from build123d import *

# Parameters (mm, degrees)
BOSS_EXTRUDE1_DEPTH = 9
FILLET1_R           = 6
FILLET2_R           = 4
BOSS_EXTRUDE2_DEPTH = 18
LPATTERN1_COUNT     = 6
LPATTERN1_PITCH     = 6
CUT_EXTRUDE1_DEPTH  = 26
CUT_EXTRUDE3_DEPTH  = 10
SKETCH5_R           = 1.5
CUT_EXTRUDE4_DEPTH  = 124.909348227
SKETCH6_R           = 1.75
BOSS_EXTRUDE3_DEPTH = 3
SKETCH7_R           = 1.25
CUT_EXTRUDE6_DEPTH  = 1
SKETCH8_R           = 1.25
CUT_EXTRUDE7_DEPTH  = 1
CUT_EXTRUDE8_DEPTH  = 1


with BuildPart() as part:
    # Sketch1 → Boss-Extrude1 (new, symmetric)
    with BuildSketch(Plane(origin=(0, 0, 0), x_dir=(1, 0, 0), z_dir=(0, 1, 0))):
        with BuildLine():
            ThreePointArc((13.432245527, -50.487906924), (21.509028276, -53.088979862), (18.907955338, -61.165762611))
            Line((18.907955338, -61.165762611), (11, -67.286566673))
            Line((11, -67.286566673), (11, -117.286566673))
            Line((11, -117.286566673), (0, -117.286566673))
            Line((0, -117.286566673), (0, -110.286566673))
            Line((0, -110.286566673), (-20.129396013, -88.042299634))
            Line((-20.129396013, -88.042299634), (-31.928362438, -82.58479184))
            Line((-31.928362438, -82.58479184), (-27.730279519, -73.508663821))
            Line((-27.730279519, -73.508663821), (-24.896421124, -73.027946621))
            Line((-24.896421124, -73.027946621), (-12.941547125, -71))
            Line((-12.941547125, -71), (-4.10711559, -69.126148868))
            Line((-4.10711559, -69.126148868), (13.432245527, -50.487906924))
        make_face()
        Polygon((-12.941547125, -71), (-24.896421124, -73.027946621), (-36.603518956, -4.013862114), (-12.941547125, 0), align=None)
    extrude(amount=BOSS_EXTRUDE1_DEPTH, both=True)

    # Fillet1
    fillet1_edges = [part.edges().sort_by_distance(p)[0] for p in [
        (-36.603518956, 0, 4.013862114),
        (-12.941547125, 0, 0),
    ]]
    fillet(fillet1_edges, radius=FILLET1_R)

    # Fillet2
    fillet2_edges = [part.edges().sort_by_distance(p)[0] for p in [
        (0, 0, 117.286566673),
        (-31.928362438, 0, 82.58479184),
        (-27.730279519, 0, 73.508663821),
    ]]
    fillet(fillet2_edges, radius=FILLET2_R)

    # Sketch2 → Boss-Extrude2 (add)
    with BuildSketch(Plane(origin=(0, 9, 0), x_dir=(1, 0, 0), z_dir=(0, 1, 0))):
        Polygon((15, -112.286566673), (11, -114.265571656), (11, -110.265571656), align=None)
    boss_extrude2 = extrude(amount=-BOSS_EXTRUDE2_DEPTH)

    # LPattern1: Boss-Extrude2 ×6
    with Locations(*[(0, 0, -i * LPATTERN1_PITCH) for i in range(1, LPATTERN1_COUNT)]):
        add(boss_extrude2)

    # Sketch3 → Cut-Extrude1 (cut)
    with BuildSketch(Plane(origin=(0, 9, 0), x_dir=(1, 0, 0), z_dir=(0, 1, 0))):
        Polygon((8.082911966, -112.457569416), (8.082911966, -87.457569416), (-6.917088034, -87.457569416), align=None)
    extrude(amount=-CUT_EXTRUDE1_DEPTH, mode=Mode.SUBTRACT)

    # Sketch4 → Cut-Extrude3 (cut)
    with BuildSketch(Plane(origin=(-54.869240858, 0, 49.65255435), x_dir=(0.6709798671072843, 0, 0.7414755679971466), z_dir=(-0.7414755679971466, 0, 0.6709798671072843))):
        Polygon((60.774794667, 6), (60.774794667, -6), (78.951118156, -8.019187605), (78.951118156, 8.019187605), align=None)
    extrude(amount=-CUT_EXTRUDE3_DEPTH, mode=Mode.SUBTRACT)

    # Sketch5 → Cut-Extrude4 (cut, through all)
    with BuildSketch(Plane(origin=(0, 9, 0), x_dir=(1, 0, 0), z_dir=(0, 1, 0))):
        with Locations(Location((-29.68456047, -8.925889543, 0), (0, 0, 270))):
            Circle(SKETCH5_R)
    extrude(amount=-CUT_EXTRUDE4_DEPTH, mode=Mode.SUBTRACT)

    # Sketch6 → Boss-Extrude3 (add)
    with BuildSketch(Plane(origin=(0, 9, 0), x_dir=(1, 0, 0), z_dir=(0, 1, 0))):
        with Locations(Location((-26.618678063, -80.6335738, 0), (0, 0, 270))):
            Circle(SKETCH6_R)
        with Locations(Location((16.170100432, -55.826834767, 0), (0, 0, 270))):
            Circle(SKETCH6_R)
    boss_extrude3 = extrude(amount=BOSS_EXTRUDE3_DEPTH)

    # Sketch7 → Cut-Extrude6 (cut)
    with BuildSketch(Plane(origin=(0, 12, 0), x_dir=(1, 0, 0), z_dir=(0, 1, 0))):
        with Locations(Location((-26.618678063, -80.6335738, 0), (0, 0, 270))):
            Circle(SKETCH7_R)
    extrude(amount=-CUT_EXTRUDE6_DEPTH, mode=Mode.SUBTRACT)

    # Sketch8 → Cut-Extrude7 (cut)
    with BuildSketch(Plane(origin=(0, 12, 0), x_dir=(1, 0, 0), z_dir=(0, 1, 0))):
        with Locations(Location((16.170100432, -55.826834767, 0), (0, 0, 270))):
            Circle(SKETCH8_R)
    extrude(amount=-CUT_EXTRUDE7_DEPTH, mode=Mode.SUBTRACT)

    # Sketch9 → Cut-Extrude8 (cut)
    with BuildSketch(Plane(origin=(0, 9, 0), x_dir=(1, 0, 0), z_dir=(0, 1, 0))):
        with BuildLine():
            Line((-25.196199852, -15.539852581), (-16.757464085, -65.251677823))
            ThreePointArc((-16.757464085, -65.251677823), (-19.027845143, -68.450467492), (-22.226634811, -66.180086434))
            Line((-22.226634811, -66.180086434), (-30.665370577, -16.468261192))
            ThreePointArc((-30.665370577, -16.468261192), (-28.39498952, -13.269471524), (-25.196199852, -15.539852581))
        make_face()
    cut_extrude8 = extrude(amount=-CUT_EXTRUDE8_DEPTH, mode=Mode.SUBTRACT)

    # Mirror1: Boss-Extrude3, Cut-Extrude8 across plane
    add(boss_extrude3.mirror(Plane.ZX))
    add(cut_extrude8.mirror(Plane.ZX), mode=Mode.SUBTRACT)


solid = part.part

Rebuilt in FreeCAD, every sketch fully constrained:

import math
import FreeCAD as App
import Part
import Sketcher
Q = App.Units.Quantity


def edges_at(feature, points):
    """Names of the edges that pass closest to the given points."""
    edges = feature.Shape.Edges
    near = lambda p: min(range(len(edges)), key=lambda i: edges[i].distToShape(Part.Vertex(*p))[0])
    return sorted({f"Edge{near(p) + 1}" for p in points})

doc = App.newDocument("Part")
body = doc.addObject("PartDesign::Body", "Body")

# Sketch on XZ plane
sketch1 = body.newObject("Sketcher::SketchObject", "Sketch")
sketch1.AttachmentSupport = (doc.getObject("XZ_Plane"), [""])
sketch1.MapMode = "FlatFace"
sketch1.addGeometry([
    Part.ArcOfCircle(Part.Circle(App.Vector(16.1701, 55.826835, 0), App.Vector(0, 0, 1), 6), math.radians(-117.149199), math.radians(62.850801)),  # 0
    Part.LineSegment(App.Vector(13.432246, 50.487907, 0), App.Vector(-4.107116, 69.126149, 0)),  # 1
    Part.LineSegment(App.Vector(-4.107116, 69.126149, 0), App.Vector(-12.941547, 71, 0)),  # 2
    Part.LineSegment(App.Vector(-12.941547, 71, 0), App.Vector(-12.941547, 0, 0)),  # 3
    Part.LineSegment(App.Vector(-12.941547, 0, 0), App.Vector(-36.603519, 4.013862, 0)),  # 4
    Part.LineSegment(App.Vector(-36.603519, 4.013862, 0), App.Vector(-24.896421, 73.027947, 0)),  # 5
    Part.LineSegment(App.Vector(-24.896421, 73.027947, 0), App.Vector(-27.73028, 73.508664, 0)),  # 6
    Part.LineSegment(App.Vector(-27.73028, 73.508664, 0), App.Vector(-31.928362, 82.584792, 0)),  # 7
    Part.LineSegment(App.Vector(-31.928362, 82.584792, 0), App.Vector(-20.129396, 88.0423, 0)),  # 8
    Part.LineSegment(App.Vector(-20.129396, 88.0423, 0), App.Vector(0, 110.286567, 0)),  # 9
    Part.LineSegment(App.Vector(0, 110.286567, 0), App.Vector(0, 117.286567, 0)),  # 10
    Part.LineSegment(App.Vector(0, 117.286567, 0), App.Vector(11, 117.286567, 0)),  # 11
    Part.LineSegment(App.Vector(11, 117.286567, 0), App.Vector(11, 67.286567, 0)),  # 12
    Part.LineSegment(App.Vector(11, 67.286567, 0), App.Vector(18.907955, 61.165763, 0)),  # 13
], False)
sketch1.addConstraint([
    Sketcher.Constraint("Coincident", 0, 1, 1, 1),
    Sketcher.Constraint("Coincident", 1, 2, 2, 1),
    Sketcher.Constraint("Coincident", 2, 2, 3, 1),
    Sketcher.Constraint("Coincident", 3, 2, 4, 1),
    Sketcher.Constraint("Coincident", 4, 2, 5, 1),
    Sketcher.Constraint("Coincident", 5, 2, 6, 1),
    Sketcher.Constraint("Coincident", 6, 2, 7, 1),
    Sketcher.Constraint("Coincident", 7, 2, 8, 1),
    Sketcher.Constraint("Coincident", 8, 2, 9, 1),
    Sketcher.Constraint("Coincident", 9, 2, 10, 1),
    Sketcher.Constraint("Coincident", 10, 2, 11, 1),
    Sketcher.Constraint("Coincident", 11, 2, 12, 1),
    Sketcher.Constraint("Coincident", 12, 2, 13, 1),
    Sketcher.Constraint("Coincident", 13, 2, 0, 2),
    Sketcher.Constraint("Vertical", 3),
    Sketcher.Constraint("Vertical", 10),
    Sketcher.Constraint("Horizontal", 11),
    Sketcher.Constraint("Vertical", 12),
    Sketcher.Constraint("PointOnObject", 3, 2, -1),
    Sketcher.Constraint("PointOnObject", 9, 2, -2),
    Sketcher.Constraint("Perpendicular", 4, 5),
    Sketcher.Constraint("Perpendicular", 5, 6),
    Sketcher.Constraint("Perpendicular", 7, 8),
    Sketcher.Constraint("Equal", 7, 13),
    Sketcher.Constraint("Radius", 0, Q("6 mm")),
    Sketcher.Constraint("DistanceX", 11, 1, 11, 2, Q("11 mm")),
    Sketcher.Constraint("DistanceY", 3, 2, 3, 1, Q("71 mm")),
    Sketcher.Constraint("DistanceY", 10, 1, 10, 2, Q("7 mm")),
    Sketcher.Constraint("DistanceY", 12, 2, 12, 1, Q("50 mm")),
    Sketcher.Constraint("Distance", 4, Q("24 mm")),
    Sketcher.Constraint("Distance", 5, Q("70 mm")),
    Sketcher.Constraint("Distance", 7, Q("10 mm")),
    Sketcher.Constraint("Distance", 8, Q("13 mm")),
    Sketcher.Constraint("Distance", 9, Q("30 mm")),
    Sketcher.Constraint("DistanceX", -1, 1, 0, 3, Q("16.1701 mm")),
    Sketcher.Constraint("DistanceY", -1, 1, 8, 2, Q("88.0423 mm")),
    Sketcher.Constraint("DistanceY", -1, 1, 1, 2, Q("69.126149 mm")),
    Sketcher.Constraint("DistanceX", 4, 2, -1, 1, Q("36.603519 mm")),
    Sketcher.Constraint("DistanceX", 5, 2, -1, 1, Q("24.896421 mm")),
    Sketcher.Constraint("DistanceX", 6, 2, -1, 1, Q("27.73028 mm")),
    Sketcher.Constraint("DistanceX", 1, 2, 0, 1, Q("17.539361 mm")),
    Sketcher.Constraint("DistanceY", 0, 1, 1, 2, Q("18.638242 mm")),
    Sketcher.Constraint("DistanceX", 2, 2, 1, 2, Q("8.834432 mm")),
])
pad1 = body.newObject("PartDesign::Pad", "Pad")
pad1.Profile = sketch1
pad1.Length = 18
pad1.Midplane = True
doc.recompute()

fillet = body.newObject("PartDesign::Fillet", "Fillet")
fillet.Base = (pad1, edges_at(pad1, [(-36.604, 0, 4.014), (-12.942, 0, 0)]))
fillet.Radius = 6
doc.recompute()

fillet2 = body.newObject("PartDesign::Fillet", "Fillet001")
fillet2.Base = (fillet, edges_at(fillet, [(0, 0, 117.287), (-31.928, 0, 82.585), (-27.73, 0, 73.509)]))
fillet2.Radius = 4

# Sketch on XZ plane
sketch2 = body.newObject("Sketcher::SketchObject", "Sketch001")
sketch2.AttachmentSupport = (doc.getObject("XZ_Plane"), [""])
sketch2.MapMode = "FlatFace"
sketch2.AttachmentOffset = App.Placement(App.Vector(0, 0, -9), App.Rotation())
sketch2.addGeometry([
    Part.LineSegment(App.Vector(11, 114.265572, 0), App.Vector(15, 112.286567, 0)),
    Part.LineSegment(App.Vector(15, 112.286567, 0), App.Vector(11, 110.265572, 0)),
    Part.LineSegment(App.Vector(11, 110.265572, 0), App.Vector(11, 114.265572, 0)),
], False)
sketch2.addConstraint([
    Sketcher.Constraint("Coincident", 0, 2, 1, 1),
    Sketcher.Constraint("Coincident", 1, 2, 2, 1),
    Sketcher.Constraint("Coincident", 2, 2, 0, 1),
    Sketcher.Constraint("Vertical", 2),
    Sketcher.Constraint("DistanceY", 2, 1, 2, 2, Q("4 mm")),
    Sketcher.Constraint("DistanceX", -1, 1, 0, 2, Q("15 mm")),
    Sketcher.Constraint("DistanceX", -1, 1, 1, 2, Q("11 mm")),
    Sketcher.Constraint("DistanceY", -1, 1, 1, 2, Q("110.265572 mm")),
    Sketcher.Constraint("Distance", 0, Q("4.462786 mm")),
])
pad2 = body.newObject("PartDesign::Pad", "Pad001")
pad2.Profile = sketch2
pad2.Length = 18
doc.recompute()

linearpattern = body.newObject("PartDesign::LinearPattern", "LinearPattern")
linearpattern.Originals = [pad2]
linearpattern.Direction = (doc.getObject("Z_Axis"), [""])
linearpattern.Mode = "offset"
linearpattern.Offset = 6
linearpattern.Occurrences = 6
linearpattern.Reversed = True
body.Tip = linearpattern

# Sketch on XZ plane
sketch3 = body.newObject("Sketcher::SketchObject", "Sketch002")
sketch3.AttachmentSupport = (doc.getObject("XZ_Plane"), [""])
sketch3.MapMode = "FlatFace"
sketch3.AttachmentOffset = App.Placement(App.Vector(0, 0, -9), App.Rotation())
sketch3.addGeometry([
    Part.LineSegment(App.Vector(8.082912, 112.457569, 0), App.Vector(8.082912, 87.457569, 0)),
    Part.LineSegment(App.Vector(8.082912, 87.457569, 0), App.Vector(-6.917088, 87.457569, 0)),
    Part.LineSegment(App.Vector(-6.917088, 87.457569, 0), App.Vector(8.082912, 112.457569, 0)),
], False)
sketch3.addConstraint([
    Sketcher.Constraint("Coincident", 0, 2, 1, 1),
    Sketcher.Constraint("Coincident", 1, 2, 2, 1),
    Sketcher.Constraint("Coincident", 2, 2, 0, 1),
    Sketcher.Constraint("Vertical", 0),
    Sketcher.Constraint("Horizontal", 1),
    Sketcher.Constraint("DistanceX", 1, 2, 1, 1, Q("15 mm")),
    Sketcher.Constraint("DistanceY", 0, 2, 0, 1, Q("25 mm")),
    Sketcher.Constraint("DistanceX", -1, 1, 0, 2, Q("8.082912 mm")),
    Sketcher.Constraint("DistanceY", -1, 1, 0, 2, Q("87.457569 mm")),
])
pocket1 = body.newObject("PartDesign::Pocket", "Pocket")
pocket1.Profile = sketch3
pocket1.Length = 26
pocket1.Reversed = True

# Sketch on an angled plane
sketch4 = body.newObject("Sketcher::SketchObject", "Sketch003")
sketch4.Placement = App.Placement(App.Vector(-54.869241, 0, 49.652554), App.Rotation(App.Vector(0.670979867, 0, 0.741475568), App.Vector(0, 1, 0), App.Vector(-0.741475568, 0, 0.670979867), "ZXY"))
sketch4.addGeometry([
    Part.LineSegment(App.Vector(60.774795, 6, 0), App.Vector(60.774795, -6, 0)),
    Part.LineSegment(App.Vector(60.774795, -6, 0), App.Vector(78.951118, -8.019188, 0)),
    Part.LineSegment(App.Vector(78.951118, -8.019188, 0), App.Vector(78.951118, 8.019188, 0)),
    Part.LineSegment(App.Vector(78.951118, 8.019188, 0), App.Vector(60.774795, 6, 0)),
], False)
sketch4.addConstraint([
    Sketcher.Constraint("Coincident", 0, 2, 1, 1),
    Sketcher.Constraint("Coincident", 1, 2, 2, 1),
    Sketcher.Constraint("Coincident", 2, 2, 3, 1),
    Sketcher.Constraint("Coincident", 3, 2, 0, 1),
    Sketcher.Constraint("Vertical", 0),
    Sketcher.Constraint("Vertical", 2),
    Sketcher.Constraint("Equal", 1, 3),
    Sketcher.Constraint("DistanceY", 0, 2, 0, 1, Q("12 mm")),
    Sketcher.Constraint("DistanceY", 0, 2, -1, 1, Q("6 mm")),
    Sketcher.Constraint("DistanceY", 2, 1, 2, 2, Q("16.038375 mm")),
    Sketcher.Constraint("DistanceX", -1, 1, 1, 2, Q("78.951118 mm")),
    Sketcher.Constraint("Distance", 1, Q("18.288134 mm")),
])
pocket2 = body.newObject("PartDesign::Pocket", "Pocket001")
pocket2.Profile = sketch4
pocket2.Length = 10

# Sketch on XZ plane
sketch5 = body.newObject("Sketcher::SketchObject", "Sketch004")
sketch5.AttachmentSupport = (doc.getObject("XZ_Plane"), [""])
sketch5.MapMode = "FlatFace"
sketch5.AttachmentOffset = App.Placement(App.Vector(0, 0, -9), App.Rotation())
sketch5.addGeometry(Part.Circle(App.Vector(-29.68456, 8.92589, 0), App.Vector(0, 0, 1), 1.5), False)
sketch5.addConstraint([
    Sketcher.Constraint("Diameter", 0, Q("3 mm")),
    Sketcher.Constraint("DistanceX", 0, 3, -1, 1, Q("29.68456 mm")),
    Sketcher.Constraint("DistanceY", -1, 1, 0, 3, Q("8.92589 mm")),
])
pocket3 = body.newObject("PartDesign::Pocket", "Pocket002")
pocket3.Profile = sketch5
pocket3.Type = "ThroughAll"
pocket3.Reversed = True

# Sketch on XZ plane
sketch6 = body.newObject("Sketcher::SketchObject", "Sketch005")
sketch6.AttachmentSupport = (doc.getObject("XZ_Plane"), [""])
sketch6.MapMode = "FlatFace"
sketch6.AttachmentOffset = App.Placement(App.Vector(0, 0, -9), App.Rotation())
sketch6.addGeometry([
    Part.Circle(App.Vector(-26.618678, 80.633574, 0), App.Vector(0, 0, 1), 1.75),
    Part.Circle(App.Vector(16.1701, 55.826835, 0), App.Vector(0, 0, 1), 1.75),
], False)
sketch6.addConstraint([
    Sketcher.Constraint("Equal", 0, 1),
    Sketcher.Constraint("Diameter", 0, Q("3.5 mm")),
    Sketcher.Constraint("DistanceX", -1, 1, 1, 3, Q("16.1701 mm")),
    Sketcher.Constraint("DistanceX", 0, 3, -1, 1, Q("26.618678 mm")),
    Sketcher.Constraint("DistanceY", 1, 3, 0, 3, Q("24.806739 mm")),
    Sketcher.Constraint("DistanceY", -1, 1, 0, 3, Q("80.633574 mm")),
])
pad3 = body.newObject("PartDesign::Pad", "Pad002")
pad3.Profile = sketch6
pad3.Length = 3
pad3.Reversed = True

# Sketch on XZ plane
sketch7 = body.newObject("Sketcher::SketchObject", "Sketch006")
sketch7.AttachmentSupport = (doc.getObject("XZ_Plane"), [""])
sketch7.MapMode = "FlatFace"
sketch7.AttachmentOffset = App.Placement(App.Vector(0, 0, -12), App.Rotation())
sketch7.addGeometry(Part.Circle(App.Vector(-26.618678, 80.633574, 0), App.Vector(0, 0, 1), 1.25), False)
sketch7.addConstraint([
    Sketcher.Constraint("Diameter", 0, Q("2.5 mm")),
    Sketcher.Constraint("DistanceX", 0, 3, -1, 1, Q("26.618678 mm")),
    Sketcher.Constraint("DistanceY", -1, 1, 0, 3, Q("80.633574 mm")),
])
pocket4 = body.newObject("PartDesign::Pocket", "Pocket003")
pocket4.Profile = sketch7
pocket4.Length = 1
pocket4.Reversed = True

# Sketch on XZ plane
sketch8 = body.newObject("Sketcher::SketchObject", "Sketch007")
sketch8.AttachmentSupport = (doc.getObject("XZ_Plane"), [""])
sketch8.MapMode = "FlatFace"
sketch8.AttachmentOffset = App.Placement(App.Vector(0, 0, -12), App.Rotation())
sketch8.addGeometry(Part.Circle(App.Vector(16.1701, 55.826835, 0), App.Vector(0, 0, 1), 1.25), False)
sketch8.addConstraint([
    Sketcher.Constraint("Diameter", 0, Q("2.5 mm")),
    Sketcher.Constraint("DistanceX", -1, 1, 0, 3, Q("16.1701 mm")),
    Sketcher.Constraint("DistanceY", -1, 1, 0, 3, Q("55.826835 mm")),
])
pocket5 = body.newObject("PartDesign::Pocket", "Pocket004")
pocket5.Profile = sketch8
pocket5.Length = 1
pocket5.Reversed = True

# Sketch on XZ plane
sketch9 = body.newObject("Sketcher::SketchObject", "Sketch008")
sketch9.AttachmentSupport = (doc.getObject("XZ_Plane"), [""])
sketch9.MapMode = "FlatFace"
sketch9.AttachmentOffset = App.Placement(App.Vector(0, 0, -9), App.Rotation())
sketch9.addGeometry([
    Part.LineSegment(App.Vector(-16.757464, 65.251678, 0), App.Vector(-25.1962, 15.539853, 0)),
    Part.ArcOfCircle(Part.Circle(App.Vector(-27.930785, 16.004057, 0), App.Vector(0, 0, 1), 2.773706), math.radians(170.365705), math.radians(350.365705)),
    Part.LineSegment(App.Vector(-30.665371, 16.468261, 0), App.Vector(-22.226635, 66.180086, 0)),
    Part.ArcOfCircle(Part.Circle(App.Vector(-19.492049, 65.715882, 0), App.Vector(0, 0, 1), 2.773706), math.radians(-9.634295), math.radians(170.365705)),
], False)
sketch9.addConstraint([
    Sketcher.Constraint("Tangent", 0, 2, 1, 2),
    Sketcher.Constraint("Tangent", 1, 1, 2, 1),
    Sketcher.Constraint("Tangent", 2, 2, 3, 2),
    Sketcher.Constraint("Tangent", 3, 1, 0, 1),
    Sketcher.Constraint("Equal", 1, 3),
    Sketcher.Constraint("Radius", 1, Q("2.773706 mm")),
    Sketcher.Constraint("DistanceX", 0, 2, -1, 1, Q("25.1962 mm")),
    Sketcher.Constraint("Distance", 0, Q("50.422989 mm")),
    Sketcher.Constraint("DistanceX", 3, 3, -1, 1, Q("19.492049 mm")),
    Sketcher.Constraint("DistanceY", -1, 1, 1, 1, Q("16.468261 mm")),
])
pocket6 = body.newObject("PartDesign::Pocket", "Pocket005")
pocket6.Profile = sketch9
pocket6.Length = 1
pocket6.Reversed = True
doc.recompute()

mirrored = body.newObject("PartDesign::Mirrored", "Mirrored")
mirrored.Originals = [pad3, pocket6]
mirrored.MirrorPlane = (doc.getObject("XZ_Plane"), [""])
body.Tip = mirrored

doc.recompute()
